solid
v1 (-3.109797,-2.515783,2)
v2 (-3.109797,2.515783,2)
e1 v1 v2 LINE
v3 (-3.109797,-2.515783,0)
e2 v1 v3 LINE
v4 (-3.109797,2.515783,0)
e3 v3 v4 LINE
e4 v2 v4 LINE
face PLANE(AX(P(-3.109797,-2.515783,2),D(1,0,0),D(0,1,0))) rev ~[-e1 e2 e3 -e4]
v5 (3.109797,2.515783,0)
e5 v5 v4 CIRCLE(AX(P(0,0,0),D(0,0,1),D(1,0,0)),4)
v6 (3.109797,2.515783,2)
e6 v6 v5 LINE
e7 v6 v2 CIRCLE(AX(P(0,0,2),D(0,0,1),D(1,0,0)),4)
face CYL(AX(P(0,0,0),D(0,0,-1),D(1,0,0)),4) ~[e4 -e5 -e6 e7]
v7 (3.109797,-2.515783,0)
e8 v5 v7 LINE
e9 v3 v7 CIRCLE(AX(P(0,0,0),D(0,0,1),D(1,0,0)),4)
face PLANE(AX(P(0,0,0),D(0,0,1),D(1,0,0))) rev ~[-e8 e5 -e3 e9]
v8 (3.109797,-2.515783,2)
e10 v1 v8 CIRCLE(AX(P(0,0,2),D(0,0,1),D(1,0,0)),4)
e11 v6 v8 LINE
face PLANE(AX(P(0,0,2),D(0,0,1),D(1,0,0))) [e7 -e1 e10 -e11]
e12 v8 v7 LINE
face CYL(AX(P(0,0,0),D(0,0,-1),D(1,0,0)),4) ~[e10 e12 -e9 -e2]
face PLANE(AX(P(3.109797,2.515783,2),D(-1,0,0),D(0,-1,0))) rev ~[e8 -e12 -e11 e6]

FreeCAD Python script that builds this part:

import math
import FreeCAD as App
import Part
import Sketcher

doc = App.newDocument("Part")
body = doc.addObject("PartDesign::Body", "Body")

# Sketch on XY plane
sketch1 = body.newObject("Sketcher::SketchObject", "Sketch")
sketch1.AttachmentSupport = (doc.getObject("XY_Plane"), [""])
sketch1.MapMode = "FlatFace"
sketch1.addGeometry(Part.Circle(App.Vector(0, 0, 0), App.Vector(0, 0, 1), 4), False)
sketch1.addConstraint([
    Sketcher.Constraint("Coincident", 0, 3, -1, 1),
    Sketcher.Constraint("Diameter", 0, 8.0),
])
pad1 = body.newObject("PartDesign::Pad", "Pad")
pad1.Profile = sketch1
pad1.Length = 2

# Sketch on XY plane
sketch2 = body.newObject("Sketcher::SketchObject", "Sketch001")
sketch2.AttachmentSupport = (doc.getObject("XY_Plane"), [""])
sketch2.MapMode = "FlatFace"
sketch2.AttachmentOffset = App.Placement(App.Vector(0, 0, 2), App.Rotation())
sketch2.addGeometry([
    Part.LineSegment(App.Vector(-3.1, -2.5, 0), App.Vector(-3.1, 2.5, 0)),  # 0
    Part.ArcOfCircle(Part.Circle(App.Vector(0, 0, 0), App.Vector(0, 0, 1), 4), math.radians(141), math.radians(219)),  # 1
    Part.ArcOfCircle(Part.Circle(App.Vector(0, 0, 0), App.Vector(0, 0, 1), 4), math.radians(0), math.radians(39)),  # 2
    Part.LineSegment(App.Vector(3.1, 2.5, 0), App.Vector(3.1, -2.5, 0)),  # 3
    Part.ArcOfCircle(Part.Circle(App.Vector(0, 0, 0), App.Vector(0, 0, 1), 4), math.radians(-39), math.radians(0)),  # 4
], False)
sketch2.addConstraint([
    Sketcher.Constraint("Coincident", 0, 1, 1, 2),
    Sketcher.Constraint("Coincident", 1, 1, 0, 2),
    Sketcher.Constraint("Coincident", 2, 2, 3, 1),
    Sketcher.Constraint("Coincident", 3, 2, 4, 1),
    Sketcher.Constraint("Tangent", 4, 2, 2, 1),
    Sketcher.Constraint("Vertical", 0),
    Sketcher.Constraint("Vertical", 3),
    Sketcher.Constraint("Coincident", 1, 3, -1, 1),
    Sketcher.Constraint("Coincident", 2, 3, -1, 1),
    Sketcher.Constraint("Equal", 2, 4),
    Sketcher.Constraint("Symmetric", 0, 1, 2, 2, -1, 1),
    Sketcher.Constraint("PointOnObject", 4, 2, -1),
    Sketcher.Constraint("Radius", 1, 4.000001),
    Sketcher.Constraint("DistanceY", 0, 1, 0, 2, 5.031566),
])
pocket1 = body.newObject("PartDesign::Pocket", "Pocket")
pocket1.Profile = sketch2
pocket1.Type = "ThroughAll"

doc.recompute()
